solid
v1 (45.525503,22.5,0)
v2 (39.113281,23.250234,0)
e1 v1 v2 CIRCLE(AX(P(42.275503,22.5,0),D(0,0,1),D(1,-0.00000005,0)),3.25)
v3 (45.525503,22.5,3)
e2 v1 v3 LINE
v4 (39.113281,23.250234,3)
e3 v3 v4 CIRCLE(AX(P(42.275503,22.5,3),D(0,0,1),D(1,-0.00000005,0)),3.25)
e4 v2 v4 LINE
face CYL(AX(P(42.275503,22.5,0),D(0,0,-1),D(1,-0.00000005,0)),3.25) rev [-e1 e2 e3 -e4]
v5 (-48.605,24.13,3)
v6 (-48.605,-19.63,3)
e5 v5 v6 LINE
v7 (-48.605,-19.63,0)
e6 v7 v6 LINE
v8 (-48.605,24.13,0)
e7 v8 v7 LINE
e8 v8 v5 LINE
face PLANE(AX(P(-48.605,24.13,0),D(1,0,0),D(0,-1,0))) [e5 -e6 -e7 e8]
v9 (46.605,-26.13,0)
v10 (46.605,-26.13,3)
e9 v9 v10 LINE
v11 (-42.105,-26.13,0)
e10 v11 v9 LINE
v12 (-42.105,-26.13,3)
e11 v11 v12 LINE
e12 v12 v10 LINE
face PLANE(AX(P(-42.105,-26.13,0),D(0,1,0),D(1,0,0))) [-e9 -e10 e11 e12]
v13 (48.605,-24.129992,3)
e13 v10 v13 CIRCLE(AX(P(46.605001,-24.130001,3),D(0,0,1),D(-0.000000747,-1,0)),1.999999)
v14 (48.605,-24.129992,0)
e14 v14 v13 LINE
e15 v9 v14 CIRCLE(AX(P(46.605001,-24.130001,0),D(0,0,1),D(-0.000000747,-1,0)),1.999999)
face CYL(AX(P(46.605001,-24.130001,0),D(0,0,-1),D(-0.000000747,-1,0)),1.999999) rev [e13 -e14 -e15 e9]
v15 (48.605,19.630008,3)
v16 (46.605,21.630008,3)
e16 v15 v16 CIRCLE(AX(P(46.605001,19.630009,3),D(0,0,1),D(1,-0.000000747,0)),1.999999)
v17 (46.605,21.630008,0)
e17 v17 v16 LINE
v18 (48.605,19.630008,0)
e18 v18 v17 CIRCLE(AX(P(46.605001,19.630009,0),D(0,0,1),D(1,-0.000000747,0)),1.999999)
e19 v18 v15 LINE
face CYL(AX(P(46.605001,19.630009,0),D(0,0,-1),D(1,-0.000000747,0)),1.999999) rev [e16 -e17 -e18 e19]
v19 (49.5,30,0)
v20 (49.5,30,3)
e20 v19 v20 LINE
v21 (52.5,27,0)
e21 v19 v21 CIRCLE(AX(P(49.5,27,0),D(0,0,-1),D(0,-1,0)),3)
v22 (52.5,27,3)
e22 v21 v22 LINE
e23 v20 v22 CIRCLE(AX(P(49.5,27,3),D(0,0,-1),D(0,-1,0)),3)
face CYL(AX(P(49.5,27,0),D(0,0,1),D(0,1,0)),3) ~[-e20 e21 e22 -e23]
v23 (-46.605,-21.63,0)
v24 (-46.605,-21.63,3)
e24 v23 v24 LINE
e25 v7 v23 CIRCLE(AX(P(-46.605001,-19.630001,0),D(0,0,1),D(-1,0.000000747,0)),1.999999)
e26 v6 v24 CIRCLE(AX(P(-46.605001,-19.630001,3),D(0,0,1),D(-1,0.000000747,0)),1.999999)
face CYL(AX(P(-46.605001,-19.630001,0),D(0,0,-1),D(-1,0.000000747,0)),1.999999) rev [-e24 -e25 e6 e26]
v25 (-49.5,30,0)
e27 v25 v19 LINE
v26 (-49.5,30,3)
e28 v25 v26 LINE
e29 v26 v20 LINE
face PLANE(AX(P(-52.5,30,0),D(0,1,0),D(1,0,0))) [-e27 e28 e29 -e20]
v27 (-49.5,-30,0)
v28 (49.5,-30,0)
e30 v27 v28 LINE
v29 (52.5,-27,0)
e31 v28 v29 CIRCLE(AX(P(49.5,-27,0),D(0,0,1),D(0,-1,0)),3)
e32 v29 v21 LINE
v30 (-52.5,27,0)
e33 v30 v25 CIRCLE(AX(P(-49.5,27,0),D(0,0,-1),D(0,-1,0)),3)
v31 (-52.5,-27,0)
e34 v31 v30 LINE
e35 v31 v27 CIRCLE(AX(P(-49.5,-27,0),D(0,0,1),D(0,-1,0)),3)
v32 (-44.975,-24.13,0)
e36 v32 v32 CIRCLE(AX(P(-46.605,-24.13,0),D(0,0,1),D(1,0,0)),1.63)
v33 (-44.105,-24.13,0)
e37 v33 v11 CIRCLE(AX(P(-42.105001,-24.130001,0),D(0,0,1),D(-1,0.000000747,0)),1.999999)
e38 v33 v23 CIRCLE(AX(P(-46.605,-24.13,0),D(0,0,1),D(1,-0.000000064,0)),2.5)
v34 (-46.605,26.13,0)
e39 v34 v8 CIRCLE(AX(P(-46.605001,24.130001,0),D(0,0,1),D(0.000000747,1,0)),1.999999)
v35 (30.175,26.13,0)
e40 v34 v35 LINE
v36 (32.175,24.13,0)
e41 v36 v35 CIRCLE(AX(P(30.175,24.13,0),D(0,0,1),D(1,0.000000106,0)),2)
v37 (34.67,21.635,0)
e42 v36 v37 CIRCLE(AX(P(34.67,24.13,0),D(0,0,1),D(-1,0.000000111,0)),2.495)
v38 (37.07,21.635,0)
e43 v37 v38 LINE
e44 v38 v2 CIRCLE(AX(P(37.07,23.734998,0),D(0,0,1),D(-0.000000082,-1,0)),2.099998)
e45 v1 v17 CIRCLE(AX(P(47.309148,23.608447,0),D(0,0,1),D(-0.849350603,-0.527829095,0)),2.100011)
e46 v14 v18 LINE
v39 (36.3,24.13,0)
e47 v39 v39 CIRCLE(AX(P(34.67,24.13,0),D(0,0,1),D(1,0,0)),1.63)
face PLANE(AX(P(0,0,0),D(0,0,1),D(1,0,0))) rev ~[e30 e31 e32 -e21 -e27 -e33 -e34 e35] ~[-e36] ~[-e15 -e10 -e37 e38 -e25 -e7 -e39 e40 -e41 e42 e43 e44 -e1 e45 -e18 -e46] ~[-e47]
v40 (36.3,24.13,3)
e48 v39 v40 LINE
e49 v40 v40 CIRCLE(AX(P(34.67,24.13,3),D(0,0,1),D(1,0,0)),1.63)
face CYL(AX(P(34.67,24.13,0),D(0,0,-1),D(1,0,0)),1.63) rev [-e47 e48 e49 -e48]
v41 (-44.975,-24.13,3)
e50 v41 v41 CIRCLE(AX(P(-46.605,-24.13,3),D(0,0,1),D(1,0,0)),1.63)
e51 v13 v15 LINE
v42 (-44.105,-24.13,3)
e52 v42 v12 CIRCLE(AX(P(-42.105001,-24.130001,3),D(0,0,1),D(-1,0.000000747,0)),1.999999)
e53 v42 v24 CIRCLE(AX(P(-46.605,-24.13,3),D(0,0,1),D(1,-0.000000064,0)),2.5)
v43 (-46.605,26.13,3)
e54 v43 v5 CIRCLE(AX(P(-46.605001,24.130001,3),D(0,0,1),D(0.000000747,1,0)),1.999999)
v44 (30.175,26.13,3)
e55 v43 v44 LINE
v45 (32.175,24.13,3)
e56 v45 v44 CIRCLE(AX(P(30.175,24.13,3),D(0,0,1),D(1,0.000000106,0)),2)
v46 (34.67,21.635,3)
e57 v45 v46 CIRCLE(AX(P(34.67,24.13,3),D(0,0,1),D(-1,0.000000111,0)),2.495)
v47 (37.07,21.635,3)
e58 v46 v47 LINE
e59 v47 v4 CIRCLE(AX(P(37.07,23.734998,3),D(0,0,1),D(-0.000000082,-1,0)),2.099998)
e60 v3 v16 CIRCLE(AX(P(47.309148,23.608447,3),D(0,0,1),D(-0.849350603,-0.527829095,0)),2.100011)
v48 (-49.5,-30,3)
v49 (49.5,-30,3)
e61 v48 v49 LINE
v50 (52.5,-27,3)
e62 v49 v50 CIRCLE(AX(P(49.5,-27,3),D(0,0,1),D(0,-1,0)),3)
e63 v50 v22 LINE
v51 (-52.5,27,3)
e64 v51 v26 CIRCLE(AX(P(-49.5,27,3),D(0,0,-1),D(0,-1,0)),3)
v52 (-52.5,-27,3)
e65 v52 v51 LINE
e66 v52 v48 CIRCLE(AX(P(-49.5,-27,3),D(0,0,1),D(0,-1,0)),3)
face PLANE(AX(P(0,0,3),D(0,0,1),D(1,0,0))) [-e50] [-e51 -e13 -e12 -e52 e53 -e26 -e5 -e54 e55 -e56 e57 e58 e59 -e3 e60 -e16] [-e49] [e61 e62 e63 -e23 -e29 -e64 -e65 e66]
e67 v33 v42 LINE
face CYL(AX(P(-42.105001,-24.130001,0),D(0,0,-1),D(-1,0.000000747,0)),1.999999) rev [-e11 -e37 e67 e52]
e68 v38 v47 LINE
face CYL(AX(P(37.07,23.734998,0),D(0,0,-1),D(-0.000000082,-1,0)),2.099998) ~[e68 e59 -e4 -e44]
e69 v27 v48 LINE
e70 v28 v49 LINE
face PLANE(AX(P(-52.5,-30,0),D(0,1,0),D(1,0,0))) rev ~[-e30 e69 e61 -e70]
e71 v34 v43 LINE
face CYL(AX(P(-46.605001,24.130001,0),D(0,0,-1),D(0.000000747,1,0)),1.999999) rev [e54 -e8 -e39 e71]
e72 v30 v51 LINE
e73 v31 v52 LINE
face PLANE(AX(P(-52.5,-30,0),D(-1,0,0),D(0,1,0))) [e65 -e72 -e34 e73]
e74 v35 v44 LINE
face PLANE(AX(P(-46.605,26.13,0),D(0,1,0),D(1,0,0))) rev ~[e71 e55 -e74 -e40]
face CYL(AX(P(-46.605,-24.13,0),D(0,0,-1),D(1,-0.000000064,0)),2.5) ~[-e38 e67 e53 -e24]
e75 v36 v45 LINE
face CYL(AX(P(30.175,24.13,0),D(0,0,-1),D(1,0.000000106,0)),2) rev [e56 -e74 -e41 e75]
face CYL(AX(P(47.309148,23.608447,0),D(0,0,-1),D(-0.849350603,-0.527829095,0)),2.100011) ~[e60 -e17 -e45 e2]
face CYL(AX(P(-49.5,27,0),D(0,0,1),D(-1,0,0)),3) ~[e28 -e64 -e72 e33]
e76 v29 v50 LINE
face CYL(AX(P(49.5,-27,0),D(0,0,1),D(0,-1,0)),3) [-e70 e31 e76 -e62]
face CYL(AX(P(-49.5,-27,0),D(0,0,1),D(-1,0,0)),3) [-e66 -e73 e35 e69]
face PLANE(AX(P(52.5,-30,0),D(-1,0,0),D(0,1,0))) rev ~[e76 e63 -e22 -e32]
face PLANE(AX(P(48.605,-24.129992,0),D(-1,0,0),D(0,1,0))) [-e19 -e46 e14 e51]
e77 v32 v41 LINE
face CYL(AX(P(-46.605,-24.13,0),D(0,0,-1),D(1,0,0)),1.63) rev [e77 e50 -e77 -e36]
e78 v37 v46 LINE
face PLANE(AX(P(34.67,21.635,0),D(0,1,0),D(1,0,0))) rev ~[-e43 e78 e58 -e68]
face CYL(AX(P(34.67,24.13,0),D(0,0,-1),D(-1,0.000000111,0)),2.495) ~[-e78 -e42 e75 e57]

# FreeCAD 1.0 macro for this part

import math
import FreeCAD as App
import Part
import Sketcher

V = App.Vector
Q = App.Units.Quantity


def edges_at(feature, points):
    """Names of the edges that pass closest to the given points."""
    edges = feature.Shape.Edges
    near = lambda p: min(range(len(edges)), key=lambda i: edges[i].distToShape(Part.Vertex(*p))[0])
    return sorted({f"Edge{near(p) + 1}" for p in points})


def add_polygon(sketch, points):
    """Adds a closed chain of lines whose ends are joined by coincident constraints."""
    first, n = sketch.GeometryCount, len(points)
    for a, b in zip(points, points[1:] + points[:1]):
        sketch.addGeometry(Part.LineSegment(App.Vector(*a, 0), App.Vector(*b, 0)), False)
    for i in range(n):
        sketch.addConstraint(Sketcher.Constraint("Coincident", first + i, 2, first + (i + 1) % n, 1))

doc = App.newDocument("Part")
body = doc.addObject("PartDesign::Body", "Body")

# Sketch on XY plane
sketch1 = doc.addObject("Sketcher::SketchObject", "Sketch")
body.addObject(sketch1)
sketch1.AttachmentSupport = (doc.XY_Plane, [""])
sketch1.MapMode = "FlatFace"
add_polygon(sketch1, [(-52.5, 30), (-52.5, -30), (52.5, -30), (52.5, 30)])  # lines 0-3
sketch1.addGeometry(Part.Circle(V(-46.6, -24.1, 0), V(0, 0, 1), 1.6), False)  # 4
sketch1.addGeometry(Part.ArcOfCircle(Part.Circle(V(-42.1, -24.1, 0), V(0, 0, 1), 2), math.radians(180), math.radians(270)), False)  # 5
sketch1.addGeometry(Part.ArcOfCircle(Part.Circle(V(-46.6, -24.1, 0), V(0, 0, 1), 2.5), math.radians(0), math.radians(90)), False)  # 6
sketch1.addGeometry(Part.ArcOfCircle(Part.Circle(V(-46.6, -19.6, 0), V(0, 0, 1), 2), math.radians(180), math.radians(270)), False)  # 7
sketch1.addGeometry(Part.LineSegment(V(-48.6, -19.6, 0), V(-48.6, 24.1, 0)), False)  # 8
sketch1.addGeometry(Part.ArcOfCircle(Part.Circle(V(-46.6, 24.1, 0), V(0, 0, 1), 2), math.radians(90), math.radians(180)), False)  # 9
sketch1.addGeometry(Part.LineSegment(V(-46.6, 26.1, 0), V(30.2, 26.1, 0)), False)  # 10
sketch1.addGeometry(Part.ArcOfCircle(Part.Circle(V(30.2, 24.1, 0), V(0, 0, 1), 2), math.radians(0), math.radians(90)), False)  # 11
sketch1.addGeometry(Part.ArcOfCircle(Part.Circle(V(34.7, 24.1, 0), V(0, 0, 1), 2.5), math.radians(180), math.radians(270)), False)  # 12
sketch1.addGeometry(Part.LineSegment(V(34.7, 21.6, 0), V(37.1, 21.6, 0)), False)  # 13
sketch1.addGeometry(Part.ArcOfCircle(Part.Circle(V(37.1, 23.7, 0), V(0, 0, 1), 2.1), math.radians(-90), math.radians(-13)), False)  # 14
sketch1.addGeometry(Part.ArcOfCircle(Part.Circle(V(42.3, 22.5, 0), V(0, 0, 1), 3.2), math.radians(0), math.radians(167)), False)  # 15
sketch1.addGeometry(Part.ArcOfCircle(Part.Circle(V(47.3, 23.6, 0), V(0, 0, 1), 2.1), math.radians(-148), math.radians(-110)), False)  # 16
sketch1.addGeometry(Part.ArcOfCircle(Part.Circle(V(46.6, 19.6, 0), V(0, 0, 1), 2), math.radians(0), math.radians(90)), False)  # 17
sketch1.addGeometry(Part.LineSegment(V(48.6, 19.6, 0), V(48.6, -24.1, 0)), False)  # 18
sketch1.addGeometry(Part.ArcOfCircle(Part.Circle(V(46.6, -24.1, 0), V(0, 0, 1), 2), math.radians(-90), math.radians(0)), False)  # 19
sketch1.addGeometry(Part.LineSegment(V(46.6, -26.1, 0), V(-42.1, -26.1, 0)), False)  # 20
sketch1.addGeometry(Part.Circle(V(34.7, 24.1, 0), V(0, 0, 1), 1.6), False)  # 21
sketch1.addConstraint(Sketcher.Constraint("Tangent", 5, 1, 6, 1))
sketch1.addConstraint(Sketcher.Constraint("Tangent", 6, 2, 7, 2))
sketch1.addConstraint(Sketcher.Constraint("Tangent", 7, 1, 8, 1))
sketch1.addConstraint(Sketcher.Constraint("Tangent", 8, 2, 9, 2))
sketch1.addConstraint(Sketcher.Constraint("Tangent", 9, 1, 10, 1))
sketch1.addConstraint(Sketcher.Constraint("Tangent", 10, 2, 11, 2))
sketch1.addConstraint(Sketcher.Constraint("Tangent", 11, 1, 12, 1))
sketch1.addConstraint(Sketcher.Constraint("Tangent", 12, 2, 13, 1))
sketch1.addConstraint(Sketcher.Constraint("Tangent", 13, 2, 14, 1))
sketch1.addConstraint(Sketcher.Constraint("Tangent", 14, 2, 15, 2))
sketch1.addConstraint(Sketcher.Constraint("Coincident", 15, 1, 16, 1))
sketch1.addConstraint(Sketcher.Constraint("Coincident", 16, 2, 17, 2))
sketch1.addConstraint(Sketcher.Constraint("Tangent", 17, 1, 18, 1))
sketch1.addConstraint(Sketcher.Constraint("Coincident", 18, 2, 19, 2))
sketch1.addConstraint(Sketcher.Constraint("Tangent", 19, 1, 20, 1))
sketch1.addConstraint(Sketcher.Constraint("Tangent", 20, 2, 5, 2))
sketch1.addConstraint(Sketcher.Constraint("Vertical", 0))
sketch1.addConstraint(Sketcher.Constraint("Horizontal", 1))
sketch1.addConstraint(Sketcher.Constraint("Vertical", 2))
sketch1.addConstraint(Sketcher.Constraint("Horizontal", 3))
sketch1.addConstraint(Sketcher.Constraint("Vertical", 8))
sketch1.addConstraint(Sketcher.Constraint("Horizontal", 10))
sketch1.addConstraint(Sketcher.Constraint("Horizontal", 13))
sketch1.addConstraint(Sketcher.Constraint("Vertical", 18))
sketch1.addConstraint(Sketcher.Constraint("Horizontal", 20))
sketch1.addConstraint(Sketcher.Constraint("Coincident", 6, 3, 4, 3))
sketch1.addConstraint(Sketcher.Constraint("Coincident", 21, 3, 12, 3))
sketch1.addConstraint(Sketcher.Constraint("Equal", 5, 7))
sketch1.addConstraint(Sketcher.Constraint("Equal", 7, 9))
sketch1.addConstraint(Sketcher.Constraint("Equal", 9, 11))
sketch1.addConstraint(Sketcher.Constraint("Equal", 11, 17))
sketch1.addConstraint(Sketcher.Constraint("Equal", 17, 19))
sketch1.addConstraint(Sketcher.Constraint("Equal", 4, 21))
sketch1.addConstraint(Sketcher.Constraint("Symmetric", 7, 3, 17, 3, -1, 1))
sketch1.addConstraint(Sketcher.Constraint("Symmetric", 0, 2, 2, 2, -1, 1))
sketch1.addConstraint(Sketcher.Constraint("Symmetric", 4, 3, 19, 3, -2))
sketch1.addConstraint(Sketcher.Constraint("Horizontal", 11, 3, 12, 3))
sketch1.addConstraint(Sketcher.Constraint("Vertical", 19, 3, 16, 2))
sketch1.addConstraint(Sketcher.Constraint("Equal", 8, 18))
sketch1.addConstraint(Sketcher.Constraint("Radius", 5, Q("1.999999 mm")))
sketch1.addConstraint(Sketcher.Constraint("Radius", 6, Q("2.5 mm")))
sketch1.addConstraint(Sketcher.Constraint("Radius", 14, Q("2.099998 mm")))
sketch1.addConstraint(Sketcher.Constraint("Diameter", 4, Q("3.26 mm")))
sketch1.addConstraint(Sketcher.Constraint("DistanceX", 1, 1, 1, 2, Q("105 mm")))
sketch1.addConstraint(Sketcher.Constraint("DistanceY", 0, 2, 0, 1, Q("60 mm")))
sketch1.addConstraint(Sketcher.Constraint("Radius", 15, Q("3.25 mm")))
sketch1.addConstraint(Sketcher.Constraint("DistanceX", 13, 1, 13, 2, Q("2.4 mm")))
sketch1.addConstraint(Sketcher.Constraint("Radius", 12, Q("2.495 mm")))
sketch1.addConstraint(Sketcher.Constraint("DistanceX", 10, 1, 10, 2, Q("76.78 mm")))
sketch1.addConstraint(Sketcher.Constraint("DistanceX", 20, 2, 20, 1, Q("88.71 mm")))
sketch1.addConstraint(Sketcher.Constraint("DistanceY", 8, 1, 8, 2, Q("43.76 mm")))
sketch1.addConstraint(Sketcher.Constraint("DistanceY", -1, 1, 15, 3, Q("22.5 mm")))
sketch1.addConstraint(Sketcher.Constraint("DistanceY", -1, 1, 15, 1, Q("22.5 mm")))
sketch1.addConstraint(Sketcher.Constraint("DistanceY", 4, 3, -1, 1, Q("24.13 mm")))
sketch1.addConstraint(Sketcher.Constraint("Radius", 16, Q("2.100011 mm")))
pad1 = doc.addObject("PartDesign::Pad", "Pad")
body.addObject(pad1)
pad1.Profile = sketch1
pad1.Length = 3
doc.recompute()

fillet = doc.addObject("PartDesign::Fillet", "Fillet")
body.addObject(fillet)
fillet.Base = (pad1, edges_at(pad1, [
    (52.5, -30, 1.5),
    (-52.5, -30, 1.5),
    (-52.5, 30, 1.5),
    (52.5, 30, 1.5),
]))
fillet.Radius = 3

doc.recompute()
